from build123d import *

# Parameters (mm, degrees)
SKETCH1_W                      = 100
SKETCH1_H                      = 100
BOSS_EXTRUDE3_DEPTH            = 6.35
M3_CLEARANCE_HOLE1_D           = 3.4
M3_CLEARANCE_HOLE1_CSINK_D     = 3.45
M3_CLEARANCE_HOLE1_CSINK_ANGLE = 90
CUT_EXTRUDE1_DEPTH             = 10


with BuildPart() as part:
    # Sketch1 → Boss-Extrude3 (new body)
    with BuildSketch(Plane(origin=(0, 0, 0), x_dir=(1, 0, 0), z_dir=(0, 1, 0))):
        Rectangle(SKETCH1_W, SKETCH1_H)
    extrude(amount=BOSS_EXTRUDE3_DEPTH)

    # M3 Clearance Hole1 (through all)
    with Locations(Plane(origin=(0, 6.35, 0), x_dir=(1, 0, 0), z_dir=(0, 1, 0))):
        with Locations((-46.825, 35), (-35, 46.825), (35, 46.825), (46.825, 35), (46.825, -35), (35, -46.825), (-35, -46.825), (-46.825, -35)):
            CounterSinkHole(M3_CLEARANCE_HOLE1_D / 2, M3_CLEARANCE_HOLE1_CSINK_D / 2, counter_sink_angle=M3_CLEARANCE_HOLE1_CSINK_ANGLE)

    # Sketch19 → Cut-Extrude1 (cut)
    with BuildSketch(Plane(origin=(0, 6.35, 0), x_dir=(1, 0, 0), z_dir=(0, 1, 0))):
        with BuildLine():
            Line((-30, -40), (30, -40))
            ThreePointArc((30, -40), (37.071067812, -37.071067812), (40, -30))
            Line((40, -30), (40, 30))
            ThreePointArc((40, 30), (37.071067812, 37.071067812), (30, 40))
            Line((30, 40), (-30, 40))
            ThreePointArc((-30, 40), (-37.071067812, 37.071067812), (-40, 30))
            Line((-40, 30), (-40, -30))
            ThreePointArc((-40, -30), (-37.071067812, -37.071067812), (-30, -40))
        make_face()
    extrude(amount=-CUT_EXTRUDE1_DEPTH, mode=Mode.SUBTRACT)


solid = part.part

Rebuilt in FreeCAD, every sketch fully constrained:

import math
import FreeCAD as App
import Part
import Sketcher
from FreeCAD import Vector
Q = App.Units.Quantity


def add_polygon(sketch, points):
    """Adds a closed chain of lines whose ends are joined by coincident constraints."""
    first, n = sketch.GeometryCount, len(points)
    for a, b in zip(points, points[1:] + points[:1]):
        sketch.addGeometry(Part.LineSegment(App.Vector(*a, 0), App.Vector(*b, 0)), False)
    for i in range(n):
        sketch.addConstraint(Sketcher.Constraint("Coincident", first + i, 2, first + (i + 1) % n, 1))

doc = App.newDocument("Part")
params = doc.addObject("Spreadsheet::Sheet", "Params")
for row, (alias, value) in enumerate([
    ("sketch1_width", "100 mm"),
    ("pad1_length", "6.35 mm"),
    ("sketch2_diameter", "3.4 mm"),
    ("hole_diameter", "3.4 mm"),
    ("hole_csink_diameter", "3.45 mm"),
    ("sketch3_radius", "10 mm"),
    ("sketch3_width", "60 mm"),
    ("pocket1_length", "10 mm"),
], start=1):
    params.set(f"A{row}", alias)
    params.set(f"B{row}", "=" + value)
    params.setAlias(f"B{row}", alias)

body = doc.addObject("PartDesign::Body", "Body")

# Sketch on XZ plane
sketch1 = doc.addObject("Sketcher::SketchObject", "Sketch")
body.addObject(sketch1)
sketch1.AttachmentSupport = (doc.XZ_Plane, [""])
sketch1.MapMode = "FlatFace"
add_polygon(sketch1, [(-50, -50), (-50, 50), (50, 50), (50, -50)])  # lines 0-3
sketch1.addConstraint(Sketcher.Constraint("Vertical", 0))
sketch1.addConstraint(Sketcher.Constraint("Horizontal", 1))
sketch1.addConstraint(Sketcher.Constraint("Vertical", 2))
sketch1.addConstraint(Sketcher.Constraint("Horizontal", 3))
sketch1.addConstraint(Sketcher.Constraint("Symmetric", 0, 2, 2, 2, -1, 1))
sketch1.addConstraint(Sketcher.Constraint("Equal", 3, 0))
sketch1.addConstraint(Sketcher.Constraint("DistanceX", 1, 1, 1, 2, Q("100 mm")))
sketch1.setExpression("Constraints[10]", "Params.sketch1_width")
pad1 = doc.addObject("PartDesign::Pad", "Pad")
body.addObject(pad1)
pad1.Profile = sketch1
pad1.setExpression("Length", "Params.pad1_length")
pad1.Reversed = True

# Sketch on XZ plane
sketch2 = doc.addObject("Sketcher::SketchObject", "Sketch001")
body.addObject(sketch2)
sketch2.AttachmentSupport = (doc.XZ_Plane, [""])
sketch2.MapMode = "FlatFace"
sketch2.AttachmentOffset = App.Placement(Vector(0, 0, -6.35), App.Rotation())
sketch2.addGeometry(Part.Circle(Vector(-46.8, -35, 0), Vector(0, 0, 1), 1.7), False)
sketch2.addGeometry(Part.Circle(Vector(-35, -46.8, 0), Vector(0, 0, 1), 1.7), False)
sketch2.addGeometry(Part.Circle(Vector(35, -46.8, 0), Vector(0, 0, 1), 1.7), False)
sketch2.addGeometry(Part.Circle(Vector(46.8, -35, 0), Vector(0, 0, 1), 1.7), False)
sketch2.addGeometry(Part.Circle(Vector(46.8, 35, 0), Vector(0, 0, 1), 1.7), False)
sketch2.addGeometry(Part.Circle(Vector(35, 46.8, 0), Vector(0, 0, 1), 1.7), False)
sketch2.addGeometry(Part.Circle(Vector(-35, 46.8, 0), Vector(0, 0, 1), 1.7), False)
sketch2.addGeometry(Part.Circle(Vector(-46.8, 35, 0), Vector(0, 0, 1), 1.7), False)
sketch2.addConstraint(Sketcher.Constraint("Equal", 0, 1))
sketch2.addConstraint(Sketcher.Constraint("Equal", 1, 2))
sketch2.addConstraint(Sketcher.Constraint("Equal", 2, 3))
sketch2.addConstraint(Sketcher.Constraint("Equal", 3, 4))
sketch2.addConstraint(Sketcher.Constraint("Equal", 4, 5))
sketch2.addConstraint(Sketcher.Constraint("Equal", 5, 6))
sketch2.addConstraint(Sketcher.Constraint("Equal", 6, 7))
sketch2.addConstraint(Sketcher.Constraint("Symmetric", 0, 3, 4, 3, -1, 1))
sketch2.addConstraint(Sketcher.Constraint("Symmetric", 1, 3, 5, 3, -1, 1))
sketch2.addConstraint(Sketcher.Constraint("Symmetric", 2, 3, 6, 3, -1, 1))
sketch2.addConstraint(Sketcher.Constraint("Symmetric", 3, 3, 7, 3, -1, 1))
sketch2.addConstraint(Sketcher.Constraint("Symmetric", 1, 3, 2, 3, -2))
sketch2.addConstraint(Sketcher.Constraint("Symmetric", 0, 3, 3, 3, -2))
sketch2.addConstraint(Sketcher.Constraint("Diameter", 0, Q("3.4 mm")))
sketch2.addConstraint(Sketcher.Constraint("DistanceY", 0, 3, -1, 1, Q("35 mm")))
sketch2.addConstraint(Sketcher.Constraint("DistanceX", 1, 3, -1, 1, Q("35 mm")))
sketch2.addConstraint(Sketcher.Constraint("DistanceX", 0, 3, 3, 3, Q("93.65 mm")))
sketch2.addConstraint(Sketcher.Constraint("DistanceY", 2, 3, 5, 3, Q("93.65 mm")))
sketch2.setExpression("Constraints[13]", "Params.sketch2_diameter")
doc.recompute()
hole = doc.addObject("PartDesign::Hole", "Hole")
body.addObject(hole)
hole.Profile = sketch2
hole.ThreadType = "None"
hole.setExpression("Diameter", "Params.hole_diameter")
hole.DepthType = "ThroughAll"
hole.HoleCutType = "Countersink"
hole.setExpression("HoleCutDiameter", "Params.hole_csink_diameter")
hole.HoleCutCountersinkAngle = 90
hole.Reversed = True

# Sketch on XZ plane
sketch3 = doc.addObject("Sketcher::SketchObject", "Sketch002")
body.addObject(sketch3)
sketch3.AttachmentSupport = (doc.XZ_Plane, [""])
sketch3.MapMode = "FlatFace"
sketch3.AttachmentOffset = App.Placement(Vector(0, 0, -6.35), App.Rotation())
sketch3.addGeometry(Part.LineSegment(Vector(-30, 40, 0), Vector(30, 40, 0)), False)
sketch3.addGeometry(Part.ArcOfCircle(Part.Circle(Vector(30, 30, 0), Vector(0, 0, 1), 10), math.radians(0), math.radians(90)), False)
sketch3.addGeometry(Part.LineSegment(Vector(40, 30, 0), Vector(40, -30, 0)), False)
sketch3.addGeometry(Part.ArcOfCircle(Part.Circle(Vector(30, -30, 0), Vector(0, 0, 1), 10), math.radians(-90), math.radians(0)), False)
sketch3.addGeometry(Part.LineSegment(Vector(30, -40, 0), Vector(-30, -40, 0)), False)
sketch3.addGeometry(Part.ArcOfCircle(Part.Circle(Vector(-30, -30, 0), Vector(0, 0, 1), 10), math.radians(180), math.radians(270)), False)
sketch3.addGeometry(Part.LineSegment(Vector(-40, -30, 0), Vector(-40, 30, 0)), False)
sketch3.addGeometry(Part.ArcOfCircle(Part.Circle(Vector(-30, 30, 0), Vector(0, 0, 1), 10), math.radians(90), math.radians(180)), False)
sketch3.addConstraint(Sketcher.Constraint("Tangent", 0, 2, 1, 2))
sketch3.addConstraint(Sketcher.Constraint("Tangent", 1, 1, 2, 1))
sketch3.addConstraint(Sketcher.Constraint("Tangent", 2, 2, 3, 2))
sketch3.addConstraint(Sketcher.Constraint("Tangent", 3, 1, 4, 1))
sketch3.addConstraint(Sketcher.Constraint("Tangent", 4, 2, 5, 2))
sketch3.addConstraint(Sketcher.Constraint("Tangent", 5, 1, 6, 1))
sketch3.addConstraint(Sketcher.Constraint("Tangent", 6, 2, 7, 2))
sketch3.addConstraint(Sketcher.Constraint("Tangent", 7, 1, 0, 1))
sketch3.addConstraint(Sketcher.Constraint("Horizontal", 0))
sketch3.addConstraint(Sketcher.Constraint("Vertical", 2))
sketch3.addConstraint(Sketcher.Constraint("Horizontal", 4))
sketch3.addConstraint(Sketcher.Constraint("Vertical", 6))
sketch3.addConstraint(Sketcher.Constraint("Equal", 1, 3))
sketch3.addConstraint(Sketcher.Constraint("Equal", 3, 5))
sketch3.addConstraint(Sketcher.Constraint("Equal", 5, 7))
sketch3.addConstraint(Sketcher.Constraint("Symmetric", 1, 3, 5, 3, -1, 1))
sketch3.addConstraint(Sketcher.Constraint("Equal", 4, 2))
sketch3.addConstraint(Sketcher.Constraint("Radius", 1, Q("10 mm")))
sketch3.addConstraint(Sketcher.Constraint("DistanceX", 0, 1, 0, 2, Q("60 mm")))
sketch3.setExpression("Constraints[17]", "Params.sketch3_radius")
sketch3.setExpression("Constraints[18]", "Params.sketch3_width")
pocket1 = doc.addObject("PartDesign::Pocket", "Pocket")
body.addObject(pocket1)
pocket1.Profile = sketch3
pocket1.setExpression("Length", "Params.pocket1_length")
pocket1.Reversed = True

doc.recompute()
